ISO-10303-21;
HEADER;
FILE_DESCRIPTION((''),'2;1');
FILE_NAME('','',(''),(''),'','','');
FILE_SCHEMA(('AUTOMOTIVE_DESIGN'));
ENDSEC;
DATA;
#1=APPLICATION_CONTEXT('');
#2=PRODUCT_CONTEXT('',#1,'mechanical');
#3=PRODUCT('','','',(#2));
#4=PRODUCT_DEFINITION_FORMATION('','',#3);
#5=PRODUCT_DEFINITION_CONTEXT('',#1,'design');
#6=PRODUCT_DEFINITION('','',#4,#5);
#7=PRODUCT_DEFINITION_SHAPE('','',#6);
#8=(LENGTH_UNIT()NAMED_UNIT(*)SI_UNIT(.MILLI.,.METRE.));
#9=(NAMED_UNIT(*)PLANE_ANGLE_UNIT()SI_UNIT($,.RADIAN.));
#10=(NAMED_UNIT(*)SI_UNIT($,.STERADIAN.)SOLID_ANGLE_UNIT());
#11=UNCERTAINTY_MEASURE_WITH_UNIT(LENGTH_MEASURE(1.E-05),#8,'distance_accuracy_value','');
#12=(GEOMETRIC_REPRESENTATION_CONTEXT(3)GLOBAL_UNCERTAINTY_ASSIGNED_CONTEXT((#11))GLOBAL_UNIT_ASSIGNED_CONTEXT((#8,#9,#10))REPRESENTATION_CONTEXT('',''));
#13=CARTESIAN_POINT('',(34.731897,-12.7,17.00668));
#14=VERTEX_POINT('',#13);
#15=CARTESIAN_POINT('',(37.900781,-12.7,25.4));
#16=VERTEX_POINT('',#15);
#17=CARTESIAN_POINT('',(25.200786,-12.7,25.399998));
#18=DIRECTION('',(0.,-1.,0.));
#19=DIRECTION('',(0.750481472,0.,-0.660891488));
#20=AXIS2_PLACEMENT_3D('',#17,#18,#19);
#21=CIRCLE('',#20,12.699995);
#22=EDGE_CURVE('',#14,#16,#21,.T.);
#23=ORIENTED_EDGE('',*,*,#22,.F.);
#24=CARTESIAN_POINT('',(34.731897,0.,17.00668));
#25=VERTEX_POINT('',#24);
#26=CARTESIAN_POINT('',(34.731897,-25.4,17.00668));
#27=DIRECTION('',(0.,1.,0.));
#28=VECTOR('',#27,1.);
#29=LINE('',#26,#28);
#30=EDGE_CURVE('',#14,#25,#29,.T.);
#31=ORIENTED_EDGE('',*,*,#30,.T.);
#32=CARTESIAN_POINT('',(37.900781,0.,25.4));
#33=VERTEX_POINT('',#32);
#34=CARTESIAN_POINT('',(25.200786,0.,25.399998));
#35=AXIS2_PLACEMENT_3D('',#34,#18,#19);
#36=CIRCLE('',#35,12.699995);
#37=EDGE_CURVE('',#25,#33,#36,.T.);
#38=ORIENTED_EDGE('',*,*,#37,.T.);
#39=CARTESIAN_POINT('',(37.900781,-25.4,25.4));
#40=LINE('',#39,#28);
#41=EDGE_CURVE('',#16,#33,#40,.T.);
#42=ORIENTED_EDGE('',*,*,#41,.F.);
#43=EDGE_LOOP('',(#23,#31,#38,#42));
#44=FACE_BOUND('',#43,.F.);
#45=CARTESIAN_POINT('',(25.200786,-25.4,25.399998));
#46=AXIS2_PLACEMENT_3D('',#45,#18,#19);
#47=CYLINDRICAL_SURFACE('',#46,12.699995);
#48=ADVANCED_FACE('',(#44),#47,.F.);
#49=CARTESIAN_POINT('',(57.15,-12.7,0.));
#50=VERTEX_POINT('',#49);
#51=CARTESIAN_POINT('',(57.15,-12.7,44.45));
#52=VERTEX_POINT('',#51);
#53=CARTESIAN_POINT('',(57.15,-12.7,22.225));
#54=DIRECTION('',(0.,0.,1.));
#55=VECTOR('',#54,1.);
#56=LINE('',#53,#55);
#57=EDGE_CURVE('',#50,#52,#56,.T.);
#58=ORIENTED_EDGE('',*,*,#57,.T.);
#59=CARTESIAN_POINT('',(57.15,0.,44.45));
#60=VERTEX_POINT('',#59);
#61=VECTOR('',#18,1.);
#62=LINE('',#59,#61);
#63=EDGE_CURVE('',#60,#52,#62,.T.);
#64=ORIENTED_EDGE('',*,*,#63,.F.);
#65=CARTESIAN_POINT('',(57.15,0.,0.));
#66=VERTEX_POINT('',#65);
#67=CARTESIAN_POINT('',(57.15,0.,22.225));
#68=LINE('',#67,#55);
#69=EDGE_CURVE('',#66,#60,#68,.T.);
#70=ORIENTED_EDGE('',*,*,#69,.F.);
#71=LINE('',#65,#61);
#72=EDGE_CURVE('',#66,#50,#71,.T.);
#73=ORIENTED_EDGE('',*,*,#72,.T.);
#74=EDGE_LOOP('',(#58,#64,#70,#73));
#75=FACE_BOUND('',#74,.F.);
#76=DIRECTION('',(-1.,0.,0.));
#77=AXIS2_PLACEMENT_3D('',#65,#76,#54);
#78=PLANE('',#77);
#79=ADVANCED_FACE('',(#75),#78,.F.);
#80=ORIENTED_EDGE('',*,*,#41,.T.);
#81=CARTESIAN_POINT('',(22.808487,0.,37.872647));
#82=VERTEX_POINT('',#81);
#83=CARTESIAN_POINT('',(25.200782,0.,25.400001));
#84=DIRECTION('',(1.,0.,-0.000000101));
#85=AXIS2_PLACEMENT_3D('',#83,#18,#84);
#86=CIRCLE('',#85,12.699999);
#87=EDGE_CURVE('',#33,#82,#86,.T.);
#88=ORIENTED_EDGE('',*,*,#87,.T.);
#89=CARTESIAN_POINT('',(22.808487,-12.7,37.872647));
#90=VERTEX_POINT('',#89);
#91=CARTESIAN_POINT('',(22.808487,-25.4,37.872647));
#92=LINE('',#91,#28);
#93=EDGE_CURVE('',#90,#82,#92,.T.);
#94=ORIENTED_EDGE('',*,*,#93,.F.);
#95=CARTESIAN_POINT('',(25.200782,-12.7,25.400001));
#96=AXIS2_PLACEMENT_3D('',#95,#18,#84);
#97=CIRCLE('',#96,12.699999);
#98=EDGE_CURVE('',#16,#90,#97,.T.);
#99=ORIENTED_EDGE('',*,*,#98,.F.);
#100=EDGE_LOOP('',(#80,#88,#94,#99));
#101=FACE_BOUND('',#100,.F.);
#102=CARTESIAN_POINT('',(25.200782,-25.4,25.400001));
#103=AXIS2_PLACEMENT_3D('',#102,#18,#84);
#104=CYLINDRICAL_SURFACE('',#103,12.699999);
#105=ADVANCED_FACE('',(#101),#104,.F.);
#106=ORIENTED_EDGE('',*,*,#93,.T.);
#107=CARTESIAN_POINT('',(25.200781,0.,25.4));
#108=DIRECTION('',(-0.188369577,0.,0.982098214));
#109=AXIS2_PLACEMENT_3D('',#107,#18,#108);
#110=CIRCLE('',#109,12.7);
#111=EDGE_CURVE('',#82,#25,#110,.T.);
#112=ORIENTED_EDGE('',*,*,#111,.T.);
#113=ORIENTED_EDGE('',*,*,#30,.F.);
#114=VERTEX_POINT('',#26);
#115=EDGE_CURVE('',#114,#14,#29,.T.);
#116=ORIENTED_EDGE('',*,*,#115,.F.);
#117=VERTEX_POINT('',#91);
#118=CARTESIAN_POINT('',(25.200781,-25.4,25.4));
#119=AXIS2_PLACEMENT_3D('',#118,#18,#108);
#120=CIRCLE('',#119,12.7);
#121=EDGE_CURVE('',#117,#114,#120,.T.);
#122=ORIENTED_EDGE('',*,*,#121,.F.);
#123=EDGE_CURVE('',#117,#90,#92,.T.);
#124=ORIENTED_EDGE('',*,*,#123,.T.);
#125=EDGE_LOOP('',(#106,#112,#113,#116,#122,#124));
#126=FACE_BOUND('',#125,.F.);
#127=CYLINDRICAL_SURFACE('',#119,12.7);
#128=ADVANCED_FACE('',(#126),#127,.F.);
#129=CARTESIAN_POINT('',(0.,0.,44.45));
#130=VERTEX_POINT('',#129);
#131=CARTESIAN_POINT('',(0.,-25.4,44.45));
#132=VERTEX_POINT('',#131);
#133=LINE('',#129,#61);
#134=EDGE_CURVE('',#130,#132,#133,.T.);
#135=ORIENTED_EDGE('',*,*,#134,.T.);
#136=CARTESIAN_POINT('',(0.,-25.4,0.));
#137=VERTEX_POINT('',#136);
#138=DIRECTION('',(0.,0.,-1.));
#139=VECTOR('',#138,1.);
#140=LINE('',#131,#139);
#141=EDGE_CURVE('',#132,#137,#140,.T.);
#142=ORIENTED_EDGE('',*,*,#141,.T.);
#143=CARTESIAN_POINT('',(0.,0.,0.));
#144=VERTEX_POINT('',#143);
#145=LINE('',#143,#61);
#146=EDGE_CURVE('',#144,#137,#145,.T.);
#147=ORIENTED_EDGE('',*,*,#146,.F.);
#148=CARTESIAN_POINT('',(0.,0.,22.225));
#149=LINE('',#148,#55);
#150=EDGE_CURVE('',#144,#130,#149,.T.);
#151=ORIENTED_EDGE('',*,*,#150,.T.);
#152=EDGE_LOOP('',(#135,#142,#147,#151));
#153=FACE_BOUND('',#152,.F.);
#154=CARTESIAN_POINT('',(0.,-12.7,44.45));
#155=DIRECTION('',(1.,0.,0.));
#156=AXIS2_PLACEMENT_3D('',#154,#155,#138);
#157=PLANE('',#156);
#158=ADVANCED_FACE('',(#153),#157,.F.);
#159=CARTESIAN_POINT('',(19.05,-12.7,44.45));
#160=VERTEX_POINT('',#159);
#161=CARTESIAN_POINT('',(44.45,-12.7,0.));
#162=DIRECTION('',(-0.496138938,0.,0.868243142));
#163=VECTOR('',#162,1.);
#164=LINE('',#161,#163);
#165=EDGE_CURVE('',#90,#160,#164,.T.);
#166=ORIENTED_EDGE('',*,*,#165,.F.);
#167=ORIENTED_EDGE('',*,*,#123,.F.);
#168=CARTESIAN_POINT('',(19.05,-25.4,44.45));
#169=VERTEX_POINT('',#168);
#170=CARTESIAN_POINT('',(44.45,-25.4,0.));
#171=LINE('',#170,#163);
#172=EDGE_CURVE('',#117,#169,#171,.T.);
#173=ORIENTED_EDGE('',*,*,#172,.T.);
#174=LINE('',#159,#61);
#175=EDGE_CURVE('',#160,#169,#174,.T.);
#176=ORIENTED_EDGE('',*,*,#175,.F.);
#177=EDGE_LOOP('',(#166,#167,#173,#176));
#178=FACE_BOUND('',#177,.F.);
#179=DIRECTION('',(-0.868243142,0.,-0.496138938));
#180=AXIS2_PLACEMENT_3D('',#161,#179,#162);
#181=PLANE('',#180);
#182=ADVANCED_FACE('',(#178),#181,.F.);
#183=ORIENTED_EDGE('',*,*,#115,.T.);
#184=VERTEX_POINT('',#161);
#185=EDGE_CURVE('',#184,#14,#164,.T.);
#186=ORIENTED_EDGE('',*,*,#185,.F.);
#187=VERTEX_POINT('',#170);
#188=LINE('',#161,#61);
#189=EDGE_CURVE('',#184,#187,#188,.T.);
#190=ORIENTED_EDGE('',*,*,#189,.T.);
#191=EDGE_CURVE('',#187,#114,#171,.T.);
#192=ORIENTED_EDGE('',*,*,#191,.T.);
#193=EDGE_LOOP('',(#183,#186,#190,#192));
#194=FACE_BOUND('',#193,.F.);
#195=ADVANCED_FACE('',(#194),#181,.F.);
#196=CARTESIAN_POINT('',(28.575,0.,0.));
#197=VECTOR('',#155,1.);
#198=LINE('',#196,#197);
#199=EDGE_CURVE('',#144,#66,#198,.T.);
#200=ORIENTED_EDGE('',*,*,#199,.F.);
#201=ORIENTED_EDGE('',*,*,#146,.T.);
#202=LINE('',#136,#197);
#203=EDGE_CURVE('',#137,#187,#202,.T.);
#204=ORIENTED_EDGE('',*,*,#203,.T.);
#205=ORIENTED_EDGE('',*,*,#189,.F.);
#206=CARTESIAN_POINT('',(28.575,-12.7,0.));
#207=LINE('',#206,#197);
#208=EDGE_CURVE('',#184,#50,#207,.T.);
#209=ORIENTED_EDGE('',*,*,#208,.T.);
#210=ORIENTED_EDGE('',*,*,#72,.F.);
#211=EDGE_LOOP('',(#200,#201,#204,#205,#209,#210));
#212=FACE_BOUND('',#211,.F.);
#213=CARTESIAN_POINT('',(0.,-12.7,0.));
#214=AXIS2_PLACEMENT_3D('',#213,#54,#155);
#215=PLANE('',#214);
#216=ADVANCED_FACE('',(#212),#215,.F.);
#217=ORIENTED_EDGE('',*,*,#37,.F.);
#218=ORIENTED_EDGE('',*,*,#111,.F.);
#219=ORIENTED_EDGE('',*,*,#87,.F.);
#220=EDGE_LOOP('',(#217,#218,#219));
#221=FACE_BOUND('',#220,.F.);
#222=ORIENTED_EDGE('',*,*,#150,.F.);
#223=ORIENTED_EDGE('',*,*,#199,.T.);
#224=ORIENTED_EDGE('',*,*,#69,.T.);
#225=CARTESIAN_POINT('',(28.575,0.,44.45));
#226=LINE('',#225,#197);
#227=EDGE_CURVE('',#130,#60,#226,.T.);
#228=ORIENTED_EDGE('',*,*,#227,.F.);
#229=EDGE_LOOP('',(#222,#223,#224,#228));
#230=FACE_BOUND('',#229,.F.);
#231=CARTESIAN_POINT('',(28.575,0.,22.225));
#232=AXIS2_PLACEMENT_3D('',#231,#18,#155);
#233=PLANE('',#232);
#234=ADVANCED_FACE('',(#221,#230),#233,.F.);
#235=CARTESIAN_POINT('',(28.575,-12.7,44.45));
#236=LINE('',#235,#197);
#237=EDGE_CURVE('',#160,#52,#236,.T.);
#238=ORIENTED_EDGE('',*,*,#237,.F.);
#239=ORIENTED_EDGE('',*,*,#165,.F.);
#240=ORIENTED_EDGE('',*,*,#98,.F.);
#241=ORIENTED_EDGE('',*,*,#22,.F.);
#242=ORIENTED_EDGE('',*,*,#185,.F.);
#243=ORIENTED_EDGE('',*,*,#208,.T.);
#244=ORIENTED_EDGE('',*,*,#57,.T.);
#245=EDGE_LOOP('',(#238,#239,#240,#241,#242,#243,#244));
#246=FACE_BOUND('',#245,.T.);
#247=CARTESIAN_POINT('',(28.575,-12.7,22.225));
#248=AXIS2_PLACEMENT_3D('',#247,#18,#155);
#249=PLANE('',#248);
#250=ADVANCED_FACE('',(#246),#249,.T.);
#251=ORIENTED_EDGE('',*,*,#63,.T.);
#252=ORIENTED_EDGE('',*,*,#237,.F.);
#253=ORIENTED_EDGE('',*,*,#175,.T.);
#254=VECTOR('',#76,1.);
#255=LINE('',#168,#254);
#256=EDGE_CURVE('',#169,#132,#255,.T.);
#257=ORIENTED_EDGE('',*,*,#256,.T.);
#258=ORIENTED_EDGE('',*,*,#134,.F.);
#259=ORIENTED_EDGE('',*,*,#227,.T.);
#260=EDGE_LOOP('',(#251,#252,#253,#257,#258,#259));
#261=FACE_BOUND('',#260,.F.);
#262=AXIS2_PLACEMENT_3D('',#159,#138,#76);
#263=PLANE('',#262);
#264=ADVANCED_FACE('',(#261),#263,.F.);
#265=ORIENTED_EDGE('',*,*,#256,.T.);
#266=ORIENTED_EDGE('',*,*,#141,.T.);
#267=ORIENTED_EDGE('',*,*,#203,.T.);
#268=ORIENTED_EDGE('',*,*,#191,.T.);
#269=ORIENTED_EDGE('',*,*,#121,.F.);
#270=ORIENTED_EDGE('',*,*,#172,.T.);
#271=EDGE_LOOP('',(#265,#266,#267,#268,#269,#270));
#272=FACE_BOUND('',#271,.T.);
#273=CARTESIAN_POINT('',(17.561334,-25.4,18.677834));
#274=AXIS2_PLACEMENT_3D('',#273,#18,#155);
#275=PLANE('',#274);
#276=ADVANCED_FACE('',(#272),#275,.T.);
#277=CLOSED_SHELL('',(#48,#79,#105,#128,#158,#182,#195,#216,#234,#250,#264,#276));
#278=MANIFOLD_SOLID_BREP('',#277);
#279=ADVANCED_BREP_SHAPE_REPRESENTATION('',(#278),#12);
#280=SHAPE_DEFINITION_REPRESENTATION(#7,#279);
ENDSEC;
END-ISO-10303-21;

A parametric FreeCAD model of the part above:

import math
import FreeCAD as App
import Part
import Sketcher
from FreeCAD import Vector
Q = App.Units.Quantity


def add_polygon(sketch, points):
    """Adds a closed chain of lines whose ends are joined by coincident constraints."""
    first, n = sketch.GeometryCount, len(points)
    for a, b in zip(points, points[1:] + points[:1]):
        sketch.addGeometry(Part.LineSegment(App.Vector(*a, 0), App.Vector(*b, 0)), False)
    for i in range(n):
        sketch.addConstraint(Sketcher.Constraint("Coincident", first + i, 2, first + (i + 1) % n, 1))

doc = App.newDocument("Part")
params = doc.addObject("Spreadsheet::Sheet", "Params")
for row, (alias, value) in enumerate([
    ("sketch1_width", "2.25 in"),
    ("sketch1_height", "1.75 in"),
    ("pad1_length", "0.5 in"),
    ("sketch2_width", "0.75 in"),
    ("pad2_length", "0.5 in"),
    ("sketch3_radius", "0.5 in"),
    ("pocket1_length", "1 in"),
], start=1):
    params.set(f"A{row}", alias)
    params.set(f"B{row}", "=" + value)
    params.setAlias(f"B{row}", alias)

body = doc.addObject("PartDesign::Body", "Body")

# Sketch on XZ plane
sketch1 = body.newObject("Sketcher::SketchObject", "Sketch")
sketch1.AttachmentSupport = (doc.getObject("XZ_Plane"), [""])
sketch1.MapMode = "FlatFace"
add_polygon(sketch1, [(0, 44.45), (0, 0), (57.15, 0), (57.15, 44.45)])  # lines 0-3
sketch1.addConstraint([
    Sketcher.Constraint("Vertical", 0),
    Sketcher.Constraint("Horizontal", 1),
    Sketcher.Constraint("Vertical", 2),
    Sketcher.Constraint("Horizontal", 3),
    Sketcher.Constraint("Coincident", 0, 2, -1, 1),
    Sketcher.Constraint("DistanceX", 1, 1, 1, 2, Q("2.25 in")),
    Sketcher.Constraint("DistanceY", 0, 2, 0, 1, Q("1.75 in")),
])
sketch1.setExpression("Constraints[9]", "Params.sketch1_width")
sketch1.setExpression("Constraints[10]", "Params.sketch1_height")
pad1 = body.newObject("PartDesign::Pad", "Pad")
pad1.Profile = sketch1
pad1.setExpression("Length", "Params.pad1_length")

# Sketch on XZ plane
sketch2 = body.newObject("Sketcher::SketchObject", "Sketch001")
sketch2.AttachmentSupport = (doc.getObject("XZ_Plane"), [""])
sketch2.MapMode = "FlatFace"
sketch2.AttachmentOffset = App.Placement(Vector(0, 0, 0.5 * 25.4), App.Rotation())
add_polygon(sketch2, [(19.05, 44.45), (0, 44.45), (0, 0), (44.45, 0)])  # lines 0-3
sketch2.addConstraint([
    Sketcher.Constraint("Horizontal", 0),
    Sketcher.Constraint("Vertical", 1),
    Sketcher.Constraint("Horizontal", 2),
    Sketcher.Constraint("Coincident", 1, 2, -1, 1),
    Sketcher.Constraint("Equal", 2, 1),
    Sketcher.Constraint("DistanceX", 3, 2, 2, 2, Q("1 in")),
    Sketcher.Constraint("DistanceX", 0, 2, 0, 1, Q("0.75 in")),
])
sketch2.setExpression("Constraints[10]", "Params.sketch2_width")
pad2 = body.newObject("PartDesign::Pad", "Pad001")
pad2.Profile = sketch2
pad2.setExpression("Length", "Params.pad2_length")

# Sketch on XZ plane
sketch3 = body.newObject("Sketcher::SketchObject", "Sketch002")
sketch3.AttachmentSupport = (doc.getObject("XZ_Plane"), [""])
sketch3.MapMode = "FlatFace"
sketch3.AttachmentOffset = App.Placement(Vector(0, 0, 1 * 25.4), App.Rotation())
sketch3.addGeometry([
    Part.ArcOfCircle(Part.Circle(Vector(25.200786, 25.399998, 0), Vector(0, 0, 1), 12.699995), math.radians(-41.367898), math.radians(0.000007)),
    Part.ArcOfCircle(Part.Circle(Vector(25.200782, 25.400001, 0), Vector(0, 0, 1), 12.699999), math.radians(-0.000006), math.radians(100.857658)),
    Part.ArcOfCircle(Part.Circle(Vector(25.200781, 25.4, 0), Vector(0, 0, 1), 12.7), math.radians(100.85765), math.radians(318.632114)),
], False)
sketch3.addConstraint([
    Sketcher.Constraint("Tangent", 0, 2, 1, 1),
    Sketcher.Constraint("Tangent", 1, 2, 2, 1),
    Sketcher.Constraint("Tangent", 2, 2, 0, 1),
    Sketcher.Constraint("Horizontal", 2, 3, 0, 2),
    Sketcher.Constraint("Radius", 1, Q("0.5 in")),
    Sketcher.Constraint("DistanceY", -1, 1, 0, 3, Q("0.9999999 in")),
    Sketcher.Constraint("DistanceX", 1, 2, 0, 3, Q("2.392299 mm")),
    Sketcher.Constraint("DistanceX", -1, 1, 2, 3, Q("25.200781 mm")),
    Sketcher.Constraint("DistanceY", -1, 1, 2, 2, Q("17.00668 mm")),
])
sketch3.setExpression("Constraints[4]", "Params.sketch3_radius")
pocket1 = body.newObject("PartDesign::Pocket", "Pocket")
pocket1.Profile = sketch3
pocket1.setExpression("Length", "Params.pocket1_length")

doc.recompute()
